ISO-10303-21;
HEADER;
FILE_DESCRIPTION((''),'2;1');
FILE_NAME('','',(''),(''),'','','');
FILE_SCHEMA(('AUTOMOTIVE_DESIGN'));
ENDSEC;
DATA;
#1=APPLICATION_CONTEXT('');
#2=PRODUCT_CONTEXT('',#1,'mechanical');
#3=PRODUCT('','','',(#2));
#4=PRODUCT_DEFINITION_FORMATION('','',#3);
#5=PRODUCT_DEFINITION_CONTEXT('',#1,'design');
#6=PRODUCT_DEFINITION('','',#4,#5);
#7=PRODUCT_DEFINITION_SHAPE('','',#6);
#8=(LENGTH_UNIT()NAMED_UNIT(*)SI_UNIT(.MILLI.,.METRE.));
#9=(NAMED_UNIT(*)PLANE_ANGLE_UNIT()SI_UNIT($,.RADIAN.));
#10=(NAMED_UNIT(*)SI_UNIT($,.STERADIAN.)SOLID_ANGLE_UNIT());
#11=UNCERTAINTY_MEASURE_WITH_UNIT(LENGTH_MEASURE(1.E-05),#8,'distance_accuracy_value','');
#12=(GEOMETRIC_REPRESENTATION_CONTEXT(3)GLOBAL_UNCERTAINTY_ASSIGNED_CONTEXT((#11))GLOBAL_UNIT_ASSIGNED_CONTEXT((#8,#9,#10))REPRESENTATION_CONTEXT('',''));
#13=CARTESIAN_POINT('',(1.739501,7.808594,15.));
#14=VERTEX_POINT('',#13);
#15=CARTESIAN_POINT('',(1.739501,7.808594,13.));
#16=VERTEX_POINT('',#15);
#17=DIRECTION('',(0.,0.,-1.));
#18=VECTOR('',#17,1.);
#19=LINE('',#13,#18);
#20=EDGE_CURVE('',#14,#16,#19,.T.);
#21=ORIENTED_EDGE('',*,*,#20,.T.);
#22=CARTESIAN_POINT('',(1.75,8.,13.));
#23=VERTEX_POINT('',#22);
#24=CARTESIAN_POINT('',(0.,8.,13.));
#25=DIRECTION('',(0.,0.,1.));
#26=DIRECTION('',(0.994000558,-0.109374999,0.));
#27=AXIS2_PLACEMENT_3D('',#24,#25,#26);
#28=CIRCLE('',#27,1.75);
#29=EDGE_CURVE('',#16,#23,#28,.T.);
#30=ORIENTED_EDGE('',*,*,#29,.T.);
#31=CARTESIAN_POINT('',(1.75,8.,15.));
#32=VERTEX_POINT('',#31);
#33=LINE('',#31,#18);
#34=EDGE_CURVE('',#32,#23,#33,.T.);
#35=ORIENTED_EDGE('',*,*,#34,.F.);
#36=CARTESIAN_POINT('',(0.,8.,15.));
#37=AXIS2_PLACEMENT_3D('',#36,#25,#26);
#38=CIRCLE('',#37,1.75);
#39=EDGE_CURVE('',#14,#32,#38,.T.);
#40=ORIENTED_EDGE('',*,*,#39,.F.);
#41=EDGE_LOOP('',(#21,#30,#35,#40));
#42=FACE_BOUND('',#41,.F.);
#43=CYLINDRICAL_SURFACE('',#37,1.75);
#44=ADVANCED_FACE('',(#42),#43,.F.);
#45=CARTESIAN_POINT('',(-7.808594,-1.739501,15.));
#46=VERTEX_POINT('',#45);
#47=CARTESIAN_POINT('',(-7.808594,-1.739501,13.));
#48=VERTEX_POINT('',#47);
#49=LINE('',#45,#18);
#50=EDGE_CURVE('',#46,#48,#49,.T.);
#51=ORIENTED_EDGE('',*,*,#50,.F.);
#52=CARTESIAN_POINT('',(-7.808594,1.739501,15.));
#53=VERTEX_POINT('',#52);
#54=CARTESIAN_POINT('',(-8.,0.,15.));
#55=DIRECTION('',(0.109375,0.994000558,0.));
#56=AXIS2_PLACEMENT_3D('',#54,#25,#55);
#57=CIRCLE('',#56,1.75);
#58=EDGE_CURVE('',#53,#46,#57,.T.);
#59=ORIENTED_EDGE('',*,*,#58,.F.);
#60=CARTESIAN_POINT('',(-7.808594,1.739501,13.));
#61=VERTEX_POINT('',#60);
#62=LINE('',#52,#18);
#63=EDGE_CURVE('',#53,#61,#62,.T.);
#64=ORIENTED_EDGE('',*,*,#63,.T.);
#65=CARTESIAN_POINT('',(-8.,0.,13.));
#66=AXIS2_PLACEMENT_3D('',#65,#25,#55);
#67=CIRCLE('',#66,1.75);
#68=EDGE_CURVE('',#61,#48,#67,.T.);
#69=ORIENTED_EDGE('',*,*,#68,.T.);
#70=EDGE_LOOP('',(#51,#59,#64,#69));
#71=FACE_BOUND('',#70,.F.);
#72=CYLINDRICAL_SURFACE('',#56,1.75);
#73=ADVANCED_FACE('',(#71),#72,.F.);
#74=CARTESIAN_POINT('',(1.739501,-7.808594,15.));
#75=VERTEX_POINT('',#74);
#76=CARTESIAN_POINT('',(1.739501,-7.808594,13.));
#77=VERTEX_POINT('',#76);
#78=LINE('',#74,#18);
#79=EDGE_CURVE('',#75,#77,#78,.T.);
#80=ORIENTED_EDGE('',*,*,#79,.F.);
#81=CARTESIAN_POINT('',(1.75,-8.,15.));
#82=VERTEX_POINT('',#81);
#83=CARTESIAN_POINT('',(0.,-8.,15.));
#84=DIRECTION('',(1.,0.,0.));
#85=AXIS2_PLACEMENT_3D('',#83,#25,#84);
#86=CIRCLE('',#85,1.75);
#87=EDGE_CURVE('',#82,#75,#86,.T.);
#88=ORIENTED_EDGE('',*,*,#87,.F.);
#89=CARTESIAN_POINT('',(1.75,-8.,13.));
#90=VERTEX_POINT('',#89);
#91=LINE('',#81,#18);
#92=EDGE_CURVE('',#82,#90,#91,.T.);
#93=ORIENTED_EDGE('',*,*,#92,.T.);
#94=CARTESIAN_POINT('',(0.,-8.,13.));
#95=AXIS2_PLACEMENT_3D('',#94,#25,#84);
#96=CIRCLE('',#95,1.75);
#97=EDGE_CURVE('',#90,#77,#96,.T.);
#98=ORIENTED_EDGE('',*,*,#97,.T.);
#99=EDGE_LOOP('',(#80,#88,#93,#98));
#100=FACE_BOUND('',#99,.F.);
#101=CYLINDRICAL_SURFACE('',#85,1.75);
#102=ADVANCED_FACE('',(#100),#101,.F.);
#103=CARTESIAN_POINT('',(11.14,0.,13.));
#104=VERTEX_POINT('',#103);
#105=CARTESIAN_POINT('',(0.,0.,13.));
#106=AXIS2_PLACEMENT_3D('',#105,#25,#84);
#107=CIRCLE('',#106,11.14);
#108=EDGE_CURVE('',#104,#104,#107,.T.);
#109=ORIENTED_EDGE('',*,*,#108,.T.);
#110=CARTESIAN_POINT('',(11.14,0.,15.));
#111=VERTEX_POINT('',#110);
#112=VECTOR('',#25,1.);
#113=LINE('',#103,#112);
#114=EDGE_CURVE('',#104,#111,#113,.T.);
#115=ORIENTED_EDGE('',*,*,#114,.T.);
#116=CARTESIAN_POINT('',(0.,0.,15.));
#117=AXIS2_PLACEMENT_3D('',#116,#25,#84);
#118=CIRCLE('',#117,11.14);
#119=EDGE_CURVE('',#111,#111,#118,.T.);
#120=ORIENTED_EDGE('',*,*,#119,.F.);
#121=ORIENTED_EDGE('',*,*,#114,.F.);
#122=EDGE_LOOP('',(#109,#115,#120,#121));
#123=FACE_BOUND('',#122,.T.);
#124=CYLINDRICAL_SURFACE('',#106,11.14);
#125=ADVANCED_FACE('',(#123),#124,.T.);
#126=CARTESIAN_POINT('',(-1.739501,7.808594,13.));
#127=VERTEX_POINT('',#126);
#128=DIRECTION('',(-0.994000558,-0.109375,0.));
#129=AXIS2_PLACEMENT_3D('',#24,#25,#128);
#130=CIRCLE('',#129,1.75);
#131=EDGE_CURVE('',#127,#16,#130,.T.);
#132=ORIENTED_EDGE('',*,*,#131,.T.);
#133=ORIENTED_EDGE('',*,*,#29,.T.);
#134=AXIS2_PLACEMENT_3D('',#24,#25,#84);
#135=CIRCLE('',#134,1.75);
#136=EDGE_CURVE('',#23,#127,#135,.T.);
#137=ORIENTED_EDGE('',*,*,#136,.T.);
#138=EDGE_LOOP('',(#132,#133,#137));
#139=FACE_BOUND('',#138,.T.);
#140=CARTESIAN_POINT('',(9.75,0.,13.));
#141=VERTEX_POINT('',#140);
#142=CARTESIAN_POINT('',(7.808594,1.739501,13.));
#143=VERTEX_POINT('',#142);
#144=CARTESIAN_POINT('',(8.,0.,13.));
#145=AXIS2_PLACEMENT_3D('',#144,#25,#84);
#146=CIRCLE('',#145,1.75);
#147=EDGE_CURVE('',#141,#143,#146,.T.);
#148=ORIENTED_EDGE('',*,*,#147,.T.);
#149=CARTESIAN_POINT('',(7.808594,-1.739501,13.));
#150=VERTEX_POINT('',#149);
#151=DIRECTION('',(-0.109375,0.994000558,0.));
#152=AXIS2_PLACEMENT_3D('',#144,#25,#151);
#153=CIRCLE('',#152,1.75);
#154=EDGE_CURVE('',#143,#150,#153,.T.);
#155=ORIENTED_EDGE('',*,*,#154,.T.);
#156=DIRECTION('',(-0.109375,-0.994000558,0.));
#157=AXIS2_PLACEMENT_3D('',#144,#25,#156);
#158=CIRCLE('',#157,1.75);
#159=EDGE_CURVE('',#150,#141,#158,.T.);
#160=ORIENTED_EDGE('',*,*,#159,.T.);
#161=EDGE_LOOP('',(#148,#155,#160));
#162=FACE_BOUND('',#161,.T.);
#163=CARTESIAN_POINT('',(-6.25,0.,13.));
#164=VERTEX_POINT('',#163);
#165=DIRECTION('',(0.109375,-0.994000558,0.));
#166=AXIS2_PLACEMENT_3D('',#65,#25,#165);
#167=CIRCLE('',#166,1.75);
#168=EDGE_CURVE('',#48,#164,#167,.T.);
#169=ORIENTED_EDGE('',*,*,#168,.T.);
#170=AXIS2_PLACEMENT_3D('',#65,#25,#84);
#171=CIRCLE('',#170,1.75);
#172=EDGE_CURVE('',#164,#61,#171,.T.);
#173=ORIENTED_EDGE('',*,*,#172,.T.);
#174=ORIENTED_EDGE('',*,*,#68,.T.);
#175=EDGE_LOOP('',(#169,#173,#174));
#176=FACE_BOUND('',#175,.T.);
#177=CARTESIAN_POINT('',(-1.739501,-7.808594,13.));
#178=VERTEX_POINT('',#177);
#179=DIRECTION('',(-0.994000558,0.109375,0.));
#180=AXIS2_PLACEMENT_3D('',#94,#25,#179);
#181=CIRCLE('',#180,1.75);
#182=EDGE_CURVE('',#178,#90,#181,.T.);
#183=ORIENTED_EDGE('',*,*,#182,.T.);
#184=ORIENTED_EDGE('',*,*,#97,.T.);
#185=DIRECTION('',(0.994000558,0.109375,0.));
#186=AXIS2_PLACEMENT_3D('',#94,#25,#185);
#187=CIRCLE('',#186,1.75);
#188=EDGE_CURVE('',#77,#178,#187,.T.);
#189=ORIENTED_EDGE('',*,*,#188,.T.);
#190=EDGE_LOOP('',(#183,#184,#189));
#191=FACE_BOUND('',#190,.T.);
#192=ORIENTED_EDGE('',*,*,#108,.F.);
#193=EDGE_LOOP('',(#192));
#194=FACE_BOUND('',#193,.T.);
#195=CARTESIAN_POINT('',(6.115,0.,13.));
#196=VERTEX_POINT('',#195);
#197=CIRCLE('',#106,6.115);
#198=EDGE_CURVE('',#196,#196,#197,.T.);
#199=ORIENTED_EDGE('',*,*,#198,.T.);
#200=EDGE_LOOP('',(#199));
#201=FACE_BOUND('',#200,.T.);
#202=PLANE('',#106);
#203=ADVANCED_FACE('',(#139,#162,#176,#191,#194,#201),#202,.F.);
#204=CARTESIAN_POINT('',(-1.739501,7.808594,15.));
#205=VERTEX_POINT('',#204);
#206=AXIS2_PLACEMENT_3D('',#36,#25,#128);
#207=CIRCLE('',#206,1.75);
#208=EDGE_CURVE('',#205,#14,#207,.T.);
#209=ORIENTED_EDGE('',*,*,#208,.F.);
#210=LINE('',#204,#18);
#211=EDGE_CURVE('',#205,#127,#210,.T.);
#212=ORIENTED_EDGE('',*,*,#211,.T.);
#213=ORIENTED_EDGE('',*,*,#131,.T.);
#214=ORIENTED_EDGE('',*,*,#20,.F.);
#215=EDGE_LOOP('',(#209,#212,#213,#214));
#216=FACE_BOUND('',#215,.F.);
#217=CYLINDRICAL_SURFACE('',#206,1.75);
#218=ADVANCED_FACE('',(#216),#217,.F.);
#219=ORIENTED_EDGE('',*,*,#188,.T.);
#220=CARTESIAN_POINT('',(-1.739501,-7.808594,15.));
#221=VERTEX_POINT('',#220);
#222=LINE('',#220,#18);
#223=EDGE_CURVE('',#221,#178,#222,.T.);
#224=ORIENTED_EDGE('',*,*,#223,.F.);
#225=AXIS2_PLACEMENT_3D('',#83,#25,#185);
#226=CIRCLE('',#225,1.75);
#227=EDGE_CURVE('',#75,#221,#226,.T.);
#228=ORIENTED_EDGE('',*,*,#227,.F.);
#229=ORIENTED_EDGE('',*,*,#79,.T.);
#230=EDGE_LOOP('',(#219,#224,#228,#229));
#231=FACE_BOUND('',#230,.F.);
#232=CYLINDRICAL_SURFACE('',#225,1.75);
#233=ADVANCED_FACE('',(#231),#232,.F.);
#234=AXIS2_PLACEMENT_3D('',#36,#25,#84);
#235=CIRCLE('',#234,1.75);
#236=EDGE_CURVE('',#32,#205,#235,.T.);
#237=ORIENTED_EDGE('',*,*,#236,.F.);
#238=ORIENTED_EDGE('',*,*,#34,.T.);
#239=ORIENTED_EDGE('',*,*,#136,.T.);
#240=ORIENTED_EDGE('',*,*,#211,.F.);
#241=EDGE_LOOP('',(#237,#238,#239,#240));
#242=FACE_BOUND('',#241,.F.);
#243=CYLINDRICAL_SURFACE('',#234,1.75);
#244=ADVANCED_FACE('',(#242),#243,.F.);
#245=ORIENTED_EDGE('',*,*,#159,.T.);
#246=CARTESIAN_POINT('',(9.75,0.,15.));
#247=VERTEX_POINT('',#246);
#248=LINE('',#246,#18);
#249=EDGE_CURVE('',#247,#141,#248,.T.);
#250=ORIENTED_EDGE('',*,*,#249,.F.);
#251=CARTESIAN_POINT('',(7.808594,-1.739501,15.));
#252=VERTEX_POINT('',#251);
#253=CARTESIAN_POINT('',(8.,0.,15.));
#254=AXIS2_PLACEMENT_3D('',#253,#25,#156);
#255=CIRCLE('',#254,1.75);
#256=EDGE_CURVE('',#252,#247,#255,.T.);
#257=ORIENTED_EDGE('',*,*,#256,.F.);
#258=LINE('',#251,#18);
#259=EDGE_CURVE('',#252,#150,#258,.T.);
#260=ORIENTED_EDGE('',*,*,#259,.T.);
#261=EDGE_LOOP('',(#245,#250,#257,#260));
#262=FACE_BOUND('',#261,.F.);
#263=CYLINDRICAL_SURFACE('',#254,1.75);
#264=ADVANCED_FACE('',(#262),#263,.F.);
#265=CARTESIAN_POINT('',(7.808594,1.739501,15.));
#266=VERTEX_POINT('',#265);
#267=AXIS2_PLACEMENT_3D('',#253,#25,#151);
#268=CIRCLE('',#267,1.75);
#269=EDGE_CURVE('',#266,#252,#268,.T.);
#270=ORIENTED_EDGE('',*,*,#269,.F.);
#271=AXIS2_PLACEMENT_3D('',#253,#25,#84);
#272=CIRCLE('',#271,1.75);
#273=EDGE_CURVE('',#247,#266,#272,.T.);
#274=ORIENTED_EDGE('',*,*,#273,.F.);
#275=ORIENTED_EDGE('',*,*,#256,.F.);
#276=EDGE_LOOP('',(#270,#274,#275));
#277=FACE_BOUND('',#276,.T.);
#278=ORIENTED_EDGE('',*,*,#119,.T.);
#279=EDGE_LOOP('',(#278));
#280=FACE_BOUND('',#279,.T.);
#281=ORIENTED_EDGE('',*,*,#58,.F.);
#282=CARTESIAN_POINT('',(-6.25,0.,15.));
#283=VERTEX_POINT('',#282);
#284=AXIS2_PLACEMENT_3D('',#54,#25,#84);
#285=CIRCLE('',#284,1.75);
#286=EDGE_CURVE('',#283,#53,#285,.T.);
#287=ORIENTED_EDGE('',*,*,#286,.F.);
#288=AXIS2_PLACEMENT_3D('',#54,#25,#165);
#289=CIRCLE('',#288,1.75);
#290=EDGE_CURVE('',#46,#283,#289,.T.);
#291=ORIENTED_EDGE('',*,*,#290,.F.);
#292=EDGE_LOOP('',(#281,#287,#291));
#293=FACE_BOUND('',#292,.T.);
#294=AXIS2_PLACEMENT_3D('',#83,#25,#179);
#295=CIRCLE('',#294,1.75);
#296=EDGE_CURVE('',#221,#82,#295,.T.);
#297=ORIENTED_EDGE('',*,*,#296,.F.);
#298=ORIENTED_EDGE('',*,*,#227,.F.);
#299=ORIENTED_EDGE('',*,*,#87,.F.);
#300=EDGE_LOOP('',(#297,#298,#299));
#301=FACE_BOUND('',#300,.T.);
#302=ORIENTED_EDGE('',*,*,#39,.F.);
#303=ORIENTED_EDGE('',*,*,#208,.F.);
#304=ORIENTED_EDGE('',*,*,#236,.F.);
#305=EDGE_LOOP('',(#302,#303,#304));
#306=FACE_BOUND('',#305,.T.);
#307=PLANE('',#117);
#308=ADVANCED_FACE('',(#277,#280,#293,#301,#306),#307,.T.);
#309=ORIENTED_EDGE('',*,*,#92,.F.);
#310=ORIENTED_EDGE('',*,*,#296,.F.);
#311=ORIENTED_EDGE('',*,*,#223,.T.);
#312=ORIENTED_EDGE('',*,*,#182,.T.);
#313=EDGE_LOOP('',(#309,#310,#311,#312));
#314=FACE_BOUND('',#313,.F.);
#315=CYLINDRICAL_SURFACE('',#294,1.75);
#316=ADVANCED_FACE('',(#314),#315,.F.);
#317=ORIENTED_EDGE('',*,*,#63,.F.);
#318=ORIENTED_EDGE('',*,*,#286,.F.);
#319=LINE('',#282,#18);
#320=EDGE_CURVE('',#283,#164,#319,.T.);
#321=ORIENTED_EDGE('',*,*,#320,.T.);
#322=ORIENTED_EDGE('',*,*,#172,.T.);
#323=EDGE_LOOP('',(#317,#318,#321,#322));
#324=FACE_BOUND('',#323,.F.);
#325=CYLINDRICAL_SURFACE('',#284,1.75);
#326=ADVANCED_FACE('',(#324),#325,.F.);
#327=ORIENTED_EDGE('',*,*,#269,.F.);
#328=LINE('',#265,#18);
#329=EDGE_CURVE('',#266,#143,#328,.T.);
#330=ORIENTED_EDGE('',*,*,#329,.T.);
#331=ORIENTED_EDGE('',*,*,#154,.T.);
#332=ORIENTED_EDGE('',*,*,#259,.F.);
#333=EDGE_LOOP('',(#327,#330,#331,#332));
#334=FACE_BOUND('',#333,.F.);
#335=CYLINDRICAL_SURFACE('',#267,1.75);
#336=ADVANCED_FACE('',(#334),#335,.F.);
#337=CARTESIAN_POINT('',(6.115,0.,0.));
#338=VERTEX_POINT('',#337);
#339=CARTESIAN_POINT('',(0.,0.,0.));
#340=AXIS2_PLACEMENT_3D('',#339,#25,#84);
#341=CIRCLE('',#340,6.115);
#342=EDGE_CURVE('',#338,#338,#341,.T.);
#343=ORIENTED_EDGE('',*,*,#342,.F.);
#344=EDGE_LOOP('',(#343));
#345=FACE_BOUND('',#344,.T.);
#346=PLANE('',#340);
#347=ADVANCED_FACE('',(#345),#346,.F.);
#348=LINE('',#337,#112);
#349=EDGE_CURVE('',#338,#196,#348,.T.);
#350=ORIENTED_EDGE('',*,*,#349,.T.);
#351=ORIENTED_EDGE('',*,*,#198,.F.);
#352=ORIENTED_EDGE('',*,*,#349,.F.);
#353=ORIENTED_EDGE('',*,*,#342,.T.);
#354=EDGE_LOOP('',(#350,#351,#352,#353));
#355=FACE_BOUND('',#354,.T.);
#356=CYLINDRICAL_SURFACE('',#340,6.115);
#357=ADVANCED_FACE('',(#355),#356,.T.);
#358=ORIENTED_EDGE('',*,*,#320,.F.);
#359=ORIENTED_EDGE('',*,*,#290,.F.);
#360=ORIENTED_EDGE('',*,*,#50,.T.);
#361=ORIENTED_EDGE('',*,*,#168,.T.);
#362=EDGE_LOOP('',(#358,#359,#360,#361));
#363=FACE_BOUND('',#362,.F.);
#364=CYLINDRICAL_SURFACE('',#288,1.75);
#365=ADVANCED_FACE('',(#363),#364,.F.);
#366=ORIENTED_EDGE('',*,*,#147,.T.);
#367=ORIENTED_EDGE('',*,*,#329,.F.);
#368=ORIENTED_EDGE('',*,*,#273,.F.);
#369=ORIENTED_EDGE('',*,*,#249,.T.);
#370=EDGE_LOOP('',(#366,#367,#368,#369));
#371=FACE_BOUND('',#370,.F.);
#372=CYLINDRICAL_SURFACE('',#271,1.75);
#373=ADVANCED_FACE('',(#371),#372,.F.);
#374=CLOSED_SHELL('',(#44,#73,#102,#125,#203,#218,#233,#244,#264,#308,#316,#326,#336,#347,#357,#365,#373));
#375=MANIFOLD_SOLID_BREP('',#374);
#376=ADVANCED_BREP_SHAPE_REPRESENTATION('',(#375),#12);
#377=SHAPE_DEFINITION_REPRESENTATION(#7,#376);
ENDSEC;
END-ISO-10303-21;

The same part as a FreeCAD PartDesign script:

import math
import FreeCAD as App
import Part
import Sketcher
Q = App.Units.Quantity

doc = App.newDocument("Part")
params = doc.addObject("Spreadsheet::Sheet", "Params")
for row, (alias, value) in enumerate([
    ("sketch1_height", "15 mm"),
    ("sketch1_height2", "13 mm"),
    ("sketch1_width", "11.14 mm"),
    ("revolution_angle", "360 deg"),
    ("sketch2_radius", "1.75 mm"),
    ("pocket1_length", "5 mm"),
], start=1):
    params.set(f"A{row}", alias)
    params.set(f"B{row}", "=" + value)
    params.setAlias(f"B{row}", alias)

body = doc.addObject("PartDesign::Body", "Body")

# Sketch on XZ plane
sketch1 = body.newObject("Sketcher::SketchObject", "Sketch")
sketch1.AttachmentSupport = (doc.getObject("XZ_Plane"), [""])
sketch1.MapMode = "FlatFace"
sketch1.addGeometry([
    Part.LineSegment(App.Vector(0, 15, 0), App.Vector(0, 0, 0)),  # 0
    Part.LineSegment(App.Vector(0, 0, 0), App.Vector(6.1, 0, 0)),  # 1
    Part.LineSegment(App.Vector(6.1, 0, 0), App.Vector(6.1, 13, 0)),  # 2
    Part.LineSegment(App.Vector(6.1, 13, 0), App.Vector(11.1, 13, 0)),  # 3
    Part.LineSegment(App.Vector(11.1, 13, 0), App.Vector(11.1, 15, 0)),  # 4
    Part.LineSegment(App.Vector(11.1, 15, 0), App.Vector(0, 15, 0)),  # 5
], False)
sketch1.addConstraint([
    Sketcher.Constraint("Coincident", 0, 2, 1, 1),
    Sketcher.Constraint("Coincident", 1, 2, 2, 1),
    Sketcher.Constraint("Coincident", 2, 2, 3, 1),
    Sketcher.Constraint("Coincident", 3, 2, 4, 1),
    Sketcher.Constraint("Coincident", 4, 2, 5, 1),
    Sketcher.Constraint("Coincident", 5, 2, 0, 1),
    Sketcher.Constraint("Vertical", 0),
    Sketcher.Constraint("Horizontal", 1),
    Sketcher.Constraint("Vertical", 2),
    Sketcher.Constraint("Horizontal", 3),
    Sketcher.Constraint("Vertical", 4),
    Sketcher.Constraint("Horizontal", 5),
    Sketcher.Constraint("Coincident", 0, 2, -1, 1),
    Sketcher.Constraint("DistanceY", 0, 2, 0, 1, Q("15 mm")),
    Sketcher.Constraint("DistanceY", 2, 1, 2, 2, Q("13 mm")),
    Sketcher.Constraint("DistanceX", 5, 2, 5, 1, Q("11.14 mm")),
    Sketcher.Constraint("DistanceX", 1, 1, 1, 2, Q("6.115 mm")),
])
sketch1.setExpression("Constraints[13]", "Params.sketch1_height")
sketch1.setExpression("Constraints[14]", "Params.sketch1_height2")
sketch1.setExpression("Constraints[15]", "Params.sketch1_width")
revolution = body.newObject("PartDesign::Revolution", "Revolution")
revolution.Profile = sketch1
revolution.ReferenceAxis = (sketch1, ["V_Axis"])
revolution.setExpression("Angle", "Params.revolution_angle")

# Sketch on XY plane
sketch2 = body.newObject("Sketcher::SketchObject", "Sketch001")
sketch2.AttachmentSupport = (doc.getObject("XY_Plane"), [""])
sketch2.MapMode = "FlatFace"
sketch2.AttachmentOffset = App.Placement(App.Vector(0, 0, 15), App.Rotation())
sketch2.addGeometry([
    Part.ArcOfCircle(Part.Circle(App.Vector(0, 8, 0), App.Vector(0, 0, 1), 1.75), math.radians(-174), math.radians(-6)),  # 0
    Part.ArcOfCircle(Part.Circle(App.Vector(0, 8, 0), App.Vector(0, 0, 1), 1.75), math.radians(-6.28), math.radians(0)),  # 1
    Part.ArcOfCircle(Part.Circle(App.Vector(0, 8, 0), App.Vector(0, 0, 1), 1.75), math.radians(0), math.radians(186)),  # 2
    Part.ArcOfCircle(Part.Circle(App.Vector(-8, 0, 0), App.Vector(0, 0, 1), 1.75), math.radians(84), math.radians(276)),  # 3
    Part.ArcOfCircle(Part.Circle(App.Vector(-8, 0, 0), App.Vector(0, 0, 1), 1.75), math.radians(-84), math.radians(0)),  # 4
    Part.ArcOfCircle(Part.Circle(App.Vector(-8, 0, 0), App.Vector(0, 0, 1), 1.75), math.radians(0), math.radians(84)),  # 5
    Part.ArcOfCircle(Part.Circle(App.Vector(0, -8, 0), App.Vector(0, 0, 1), 1.75), math.radians(6), math.radians(174)),  # 6
    Part.ArcOfCircle(Part.Circle(App.Vector(0, -8, 0), App.Vector(0, 0, 1), 1.75), math.radians(174), math.radians(360)),  # 7
    Part.ArcOfCircle(Part.Circle(App.Vector(0, -8, 0), App.Vector(0, 0, 1), 1.75), math.radians(0), math.radians(6.28)),  # 8
    Part.ArcOfCircle(Part.Circle(App.Vector(8, 0, 0), App.Vector(0, 0, 1), 1.75), math.radians(0), math.radians(96)),  # 9
    Part.ArcOfCircle(Part.Circle(App.Vector(8, 0, 0), App.Vector(0, 0, 1), 1.75), math.radians(96), math.radians(264)),  # 10
    Part.ArcOfCircle(Part.Circle(App.Vector(8, 0, 0), App.Vector(0, 0, 1), 1.75), math.radians(-96), math.radians(0)),  # 11
], False)
sketch2.addConstraint([
    Sketcher.Constraint("Tangent", 0, 2, 1, 1),
    Sketcher.Constraint("Tangent", 1, 2, 2, 1),
    Sketcher.Constraint("Tangent", 2, 2, 0, 1),
    Sketcher.Constraint("Tangent", 3, 2, 4, 1),
    Sketcher.Constraint("Tangent", 4, 2, 5, 1),
    Sketcher.Constraint("Tangent", 5, 2, 3, 1),
    Sketcher.Constraint("Tangent", 6, 2, 7, 1),
    Sketcher.Constraint("Tangent", 7, 2, 8, 1),
    Sketcher.Constraint("Tangent", 8, 2, 6, 1),
    Sketcher.Constraint("Tangent", 9, 2, 10, 1),
    Sketcher.Constraint("Tangent", 10, 2, 11, 1),
    Sketcher.Constraint("Tangent", 11, 2, 9, 1),
    Sketcher.Constraint("Equal", 2, 3),
    Sketcher.Constraint("Equal", 5, 6),
    Sketcher.Constraint("Equal", 8, 9),
    Sketcher.Constraint("Symmetric", 0, 3, 6, 3, -1, 1),
    Sketcher.Constraint("Symmetric", 3, 3, 9, 3, -1, 1),
    Sketcher.Constraint("Symmetric", 0, 2, 2, 2, -2),
    Sketcher.Constraint("Symmetric", 5, 2, 9, 2, -2),
    Sketcher.Constraint("PointOnObject", 4, 2, -1),
    Sketcher.Constraint("PointOnObject", 11, 2, -1),
    Sketcher.Constraint("Horizontal", 2, 3, 1, 2),
    Sketcher.Constraint("Horizontal", 8, 3, 7, 2),
    Sketcher.Constraint("Horizontal", 6, 2, 8, 2),
    Sketcher.Constraint("Horizontal", 3, 2, 10, 2),
    Sketcher.Constraint("Vertical", 3, 2, 5, 2),
    Sketcher.Constraint("Vertical", 2, 2, 6, 2),
    Sketcher.Constraint("Radius", 0, Q("1.75 mm")),
    Sketcher.Constraint("DistanceY", -1, 1, 0, 3, Q("8 mm")),
    Sketcher.Constraint("DistanceX", 3, 3, -1, 1, Q("8 mm")),
    Sketcher.Constraint("DistanceX", 2, 2, 0, 2, Q("3.479002 mm")),
    Sketcher.Constraint("DistanceY", 3, 2, 5, 2, Q("3.479002 mm")),
])
sketch2.setExpression("Constraints[27]", "Params.sketch2_radius")
pocket1 = body.newObject("PartDesign::Pocket", "Pocket")
pocket1.Profile = sketch2
pocket1.setExpression("Length", "Params.pocket1_length")

doc.recompute()
